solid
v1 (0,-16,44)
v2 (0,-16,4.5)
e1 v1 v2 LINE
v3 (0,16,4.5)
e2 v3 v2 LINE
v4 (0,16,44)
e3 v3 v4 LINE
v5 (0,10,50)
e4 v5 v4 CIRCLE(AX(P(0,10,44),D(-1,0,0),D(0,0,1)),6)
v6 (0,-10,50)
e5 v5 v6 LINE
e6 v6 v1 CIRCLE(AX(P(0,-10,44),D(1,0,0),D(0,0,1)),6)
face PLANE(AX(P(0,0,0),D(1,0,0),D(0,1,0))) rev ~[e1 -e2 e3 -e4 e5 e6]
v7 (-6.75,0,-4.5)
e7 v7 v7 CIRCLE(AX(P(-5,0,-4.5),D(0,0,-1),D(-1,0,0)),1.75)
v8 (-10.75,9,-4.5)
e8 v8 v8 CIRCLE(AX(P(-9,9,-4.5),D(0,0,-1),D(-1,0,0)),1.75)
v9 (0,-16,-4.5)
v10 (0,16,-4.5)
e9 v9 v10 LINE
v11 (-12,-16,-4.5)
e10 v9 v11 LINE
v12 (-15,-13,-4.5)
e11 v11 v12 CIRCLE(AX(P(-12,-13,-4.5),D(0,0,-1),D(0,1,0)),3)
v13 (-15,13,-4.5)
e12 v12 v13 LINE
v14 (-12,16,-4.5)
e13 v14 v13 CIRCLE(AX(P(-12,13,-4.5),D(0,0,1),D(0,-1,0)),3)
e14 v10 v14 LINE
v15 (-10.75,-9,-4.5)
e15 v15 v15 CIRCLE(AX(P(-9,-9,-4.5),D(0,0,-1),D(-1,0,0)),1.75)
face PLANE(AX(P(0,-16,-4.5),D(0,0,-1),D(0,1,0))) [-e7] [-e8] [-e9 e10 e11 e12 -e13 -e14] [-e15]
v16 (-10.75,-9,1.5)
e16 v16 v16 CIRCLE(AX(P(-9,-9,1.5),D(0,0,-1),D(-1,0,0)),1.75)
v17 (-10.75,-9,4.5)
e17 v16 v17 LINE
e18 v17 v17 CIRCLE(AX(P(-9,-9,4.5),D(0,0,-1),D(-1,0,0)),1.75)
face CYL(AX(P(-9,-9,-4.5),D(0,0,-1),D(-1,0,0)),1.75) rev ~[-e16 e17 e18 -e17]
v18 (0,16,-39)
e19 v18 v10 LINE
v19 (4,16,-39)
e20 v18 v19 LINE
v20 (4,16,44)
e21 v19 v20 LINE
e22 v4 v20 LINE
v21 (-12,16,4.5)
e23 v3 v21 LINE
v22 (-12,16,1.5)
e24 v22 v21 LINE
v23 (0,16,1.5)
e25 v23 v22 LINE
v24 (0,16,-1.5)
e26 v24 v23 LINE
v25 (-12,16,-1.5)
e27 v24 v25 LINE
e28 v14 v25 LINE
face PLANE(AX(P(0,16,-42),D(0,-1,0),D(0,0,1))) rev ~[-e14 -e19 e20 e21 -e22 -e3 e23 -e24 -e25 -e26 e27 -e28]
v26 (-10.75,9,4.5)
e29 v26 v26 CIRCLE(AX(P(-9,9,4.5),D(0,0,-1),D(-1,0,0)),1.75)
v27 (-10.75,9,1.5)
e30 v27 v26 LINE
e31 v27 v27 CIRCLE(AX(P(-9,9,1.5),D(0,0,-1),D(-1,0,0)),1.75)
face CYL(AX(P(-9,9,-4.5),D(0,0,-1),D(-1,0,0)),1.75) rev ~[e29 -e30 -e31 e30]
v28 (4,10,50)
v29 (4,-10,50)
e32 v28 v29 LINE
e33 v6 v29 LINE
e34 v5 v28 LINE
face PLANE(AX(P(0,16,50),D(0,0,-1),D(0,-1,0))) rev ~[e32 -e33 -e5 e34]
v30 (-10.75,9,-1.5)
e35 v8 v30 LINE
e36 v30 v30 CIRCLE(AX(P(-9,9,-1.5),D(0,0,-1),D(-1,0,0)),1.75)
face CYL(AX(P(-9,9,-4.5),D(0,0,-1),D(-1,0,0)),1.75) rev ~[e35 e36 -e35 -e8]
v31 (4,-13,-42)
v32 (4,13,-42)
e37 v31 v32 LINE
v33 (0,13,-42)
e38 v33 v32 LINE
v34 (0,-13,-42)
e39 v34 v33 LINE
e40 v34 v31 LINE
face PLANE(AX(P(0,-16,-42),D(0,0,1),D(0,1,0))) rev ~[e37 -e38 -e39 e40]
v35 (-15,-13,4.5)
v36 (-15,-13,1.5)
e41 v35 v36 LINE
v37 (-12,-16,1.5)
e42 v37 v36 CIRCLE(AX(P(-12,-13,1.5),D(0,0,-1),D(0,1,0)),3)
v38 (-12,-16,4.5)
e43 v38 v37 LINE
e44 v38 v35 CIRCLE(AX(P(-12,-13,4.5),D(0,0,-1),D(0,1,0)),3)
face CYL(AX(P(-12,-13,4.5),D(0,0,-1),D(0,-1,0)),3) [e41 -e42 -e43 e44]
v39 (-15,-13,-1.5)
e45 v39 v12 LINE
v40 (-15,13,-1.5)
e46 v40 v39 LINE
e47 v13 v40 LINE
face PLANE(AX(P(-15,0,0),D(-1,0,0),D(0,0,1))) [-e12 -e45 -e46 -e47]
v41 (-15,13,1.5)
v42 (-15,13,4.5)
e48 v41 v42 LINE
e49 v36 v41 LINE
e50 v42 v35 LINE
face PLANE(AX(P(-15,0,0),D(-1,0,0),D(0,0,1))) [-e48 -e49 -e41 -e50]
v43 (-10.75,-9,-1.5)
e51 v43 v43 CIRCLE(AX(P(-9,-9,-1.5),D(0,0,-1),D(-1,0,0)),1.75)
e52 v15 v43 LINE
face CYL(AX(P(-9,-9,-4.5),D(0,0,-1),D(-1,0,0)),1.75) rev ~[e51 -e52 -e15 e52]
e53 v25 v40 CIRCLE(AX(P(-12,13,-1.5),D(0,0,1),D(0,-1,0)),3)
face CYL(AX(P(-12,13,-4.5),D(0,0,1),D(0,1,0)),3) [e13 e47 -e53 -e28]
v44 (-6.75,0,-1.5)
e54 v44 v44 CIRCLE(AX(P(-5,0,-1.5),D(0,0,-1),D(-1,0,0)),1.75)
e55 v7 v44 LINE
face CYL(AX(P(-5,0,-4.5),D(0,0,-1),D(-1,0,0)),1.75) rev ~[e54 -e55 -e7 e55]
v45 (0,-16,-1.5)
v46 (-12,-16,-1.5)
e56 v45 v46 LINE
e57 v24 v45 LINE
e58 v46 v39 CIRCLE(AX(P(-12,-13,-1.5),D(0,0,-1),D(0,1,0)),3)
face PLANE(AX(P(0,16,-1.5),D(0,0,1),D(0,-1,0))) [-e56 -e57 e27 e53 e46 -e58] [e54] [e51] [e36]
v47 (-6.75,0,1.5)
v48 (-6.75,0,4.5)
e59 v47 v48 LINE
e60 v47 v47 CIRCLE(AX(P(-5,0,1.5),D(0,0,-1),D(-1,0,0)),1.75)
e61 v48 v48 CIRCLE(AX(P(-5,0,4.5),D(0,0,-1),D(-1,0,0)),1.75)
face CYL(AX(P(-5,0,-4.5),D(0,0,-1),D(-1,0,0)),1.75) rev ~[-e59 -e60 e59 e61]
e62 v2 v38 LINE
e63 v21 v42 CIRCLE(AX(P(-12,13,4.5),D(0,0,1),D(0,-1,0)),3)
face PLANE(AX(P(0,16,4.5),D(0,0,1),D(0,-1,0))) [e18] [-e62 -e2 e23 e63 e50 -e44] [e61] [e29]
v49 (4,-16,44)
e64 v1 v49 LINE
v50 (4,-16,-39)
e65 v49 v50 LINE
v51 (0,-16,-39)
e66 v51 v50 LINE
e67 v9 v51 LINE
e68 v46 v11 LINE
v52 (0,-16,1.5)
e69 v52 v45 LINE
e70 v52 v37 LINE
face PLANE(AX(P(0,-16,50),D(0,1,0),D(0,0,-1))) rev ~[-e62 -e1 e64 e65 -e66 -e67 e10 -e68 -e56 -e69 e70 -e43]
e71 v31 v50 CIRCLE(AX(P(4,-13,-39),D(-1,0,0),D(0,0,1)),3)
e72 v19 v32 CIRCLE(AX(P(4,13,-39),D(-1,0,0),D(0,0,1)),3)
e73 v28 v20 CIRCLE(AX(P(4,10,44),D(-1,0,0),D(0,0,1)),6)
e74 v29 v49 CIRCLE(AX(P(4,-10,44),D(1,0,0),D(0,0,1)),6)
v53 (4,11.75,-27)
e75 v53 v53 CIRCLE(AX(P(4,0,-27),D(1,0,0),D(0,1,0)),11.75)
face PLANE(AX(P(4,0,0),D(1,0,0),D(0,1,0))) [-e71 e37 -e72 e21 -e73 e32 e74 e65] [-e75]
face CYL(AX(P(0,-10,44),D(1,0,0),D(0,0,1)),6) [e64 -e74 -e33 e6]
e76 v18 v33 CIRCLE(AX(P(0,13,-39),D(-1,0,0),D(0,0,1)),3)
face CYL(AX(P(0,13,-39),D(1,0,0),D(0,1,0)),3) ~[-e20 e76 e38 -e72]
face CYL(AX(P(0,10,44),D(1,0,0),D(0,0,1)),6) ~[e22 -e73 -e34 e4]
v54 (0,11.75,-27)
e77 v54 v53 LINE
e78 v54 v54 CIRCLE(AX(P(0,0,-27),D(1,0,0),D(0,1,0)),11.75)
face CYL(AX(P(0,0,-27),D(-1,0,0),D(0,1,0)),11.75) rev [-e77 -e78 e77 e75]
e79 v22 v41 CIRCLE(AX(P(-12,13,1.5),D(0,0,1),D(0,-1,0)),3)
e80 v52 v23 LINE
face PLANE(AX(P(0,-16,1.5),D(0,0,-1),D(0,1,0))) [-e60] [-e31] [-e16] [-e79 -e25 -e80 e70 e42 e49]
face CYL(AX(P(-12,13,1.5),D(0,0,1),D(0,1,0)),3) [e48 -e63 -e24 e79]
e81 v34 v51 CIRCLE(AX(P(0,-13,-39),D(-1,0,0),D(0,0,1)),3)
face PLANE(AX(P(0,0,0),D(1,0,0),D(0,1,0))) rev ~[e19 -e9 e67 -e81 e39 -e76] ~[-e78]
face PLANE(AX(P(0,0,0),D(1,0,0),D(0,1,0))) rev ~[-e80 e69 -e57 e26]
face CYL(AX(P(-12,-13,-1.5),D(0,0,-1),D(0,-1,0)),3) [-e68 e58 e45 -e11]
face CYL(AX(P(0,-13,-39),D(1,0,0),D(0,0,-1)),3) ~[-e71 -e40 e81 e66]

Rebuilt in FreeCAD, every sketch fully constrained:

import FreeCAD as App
import Part
import Sketcher

V = App.Vector
Q = App.Units.Quantity


def edges_at(feature, points):
    """Names of the edges that pass closest to the given points."""
    edges = feature.Shape.Edges
    near = lambda p: min(range(len(edges)), key=lambda i: edges[i].distToShape(Part.Vertex(*p))[0])
    return sorted({f"Edge{near(p) + 1}" for p in points})


def add_polygon(sketch, points):
    """Adds a closed chain of lines whose ends are joined by coincident constraints."""
    first, n = sketch.GeometryCount, len(points)
    for a, b in zip(points, points[1:] + points[:1]):
        sketch.addGeometry(Part.LineSegment(App.Vector(*a, 0), App.Vector(*b, 0)), False)
    for i in range(n):
        sketch.addConstraint(Sketcher.Constraint("Coincident", first + i, 2, first + (i + 1) % n, 1))

doc = App.newDocument("Part")
body = doc.addObject("PartDesign::Body", "Body")

# Sketch on YZ plane
sketch1 = body.newObject("Sketcher::SketchObject", "Sketch")
sketch1.AttachmentSupport = (doc.getObject("YZ_Plane"), [""])
sketch1.MapMode = "FlatFace"
add_polygon(sketch1, [(16, -42), (16, 50), (-16, 50), (-16, -42)])  # lines 0-3
sketch1.addGeometry(Part.Circle(V(0, -27, 0), V(0, 0, 1), 12), False)  # 4
sketch1.addConstraint([
    Sketcher.Constraint("Vertical", 0),
    Sketcher.Constraint("Horizontal", 1),
    Sketcher.Constraint("Vertical", 2),
    Sketcher.Constraint("Horizontal", 3),
    Sketcher.Constraint("PointOnObject", 4, 3, -2),
    Sketcher.Constraint("Diameter", 4, Q("23.5 mm")),
    Sketcher.Constraint("DistanceX", 1, 2, 1, 1, Q("32 mm")),
    Sketcher.Constraint("DistanceY", 4, 3, -1, 1, Q("27 mm")),
    Sketcher.Constraint("DistanceY", -1, 1, 0, 2, Q("50 mm")),
    Sketcher.Constraint("DistanceY", 2, 2, -1, 1, Q("42 mm")),
    Sketcher.Constraint("DistanceX", -1, 1, 0, 2, Q("16 mm")),
])
pad1 = body.newObject("PartDesign::Pad", "Pad")
pad1.Profile = sketch1
pad1.Length = 4
doc.recompute()

fillet = body.newObject("PartDesign::Fillet", "Fillet")
fillet.Base = (pad1, edges_at(pad1, [(2, -16, -42), (2, 16, -42)]))
fillet.Radius = 3
doc.recompute()

fillet2 = body.newObject("PartDesign::Fillet", "Fillet001")
fillet2.Base = (fillet, edges_at(fillet, [(2, -16, 50)]))
fillet2.Radius = 6
doc.recompute()

fillet3 = body.newObject("PartDesign::Fillet", "Fillet002")
fillet3.Base = (fillet2, edges_at(fillet2, [(2, 16, 50)]))
fillet3.Radius = 6

# Sketch on YZ plane
sketch2 = body.newObject("Sketcher::SketchObject", "Sketch001")
sketch2.AttachmentSupport = (doc.getObject("YZ_Plane"), [""])
sketch2.MapMode = "FlatFace"
add_polygon(sketch2, [(-16, 1.5), (-16, 4.5), (16, 4.5), (16, 1.5)])  # lines 0-3
add_polygon(sketch2, [(-16, -4.5), (-16, -1.5), (16, -1.5), (16, -4.5)])  # lines 4-7
sketch2.addConstraint([
    Sketcher.Constraint("Vertical", 0),
    Sketcher.Constraint("Horizontal", 1),
    Sketcher.Constraint("Vertical", 2),
    Sketcher.Constraint("Horizontal", 3),
    Sketcher.Constraint("Vertical", 4),
    Sketcher.Constraint("Horizontal", 5),
    Sketcher.Constraint("Vertical", 6),
    Sketcher.Constraint("Horizontal", 7),
    Sketcher.Constraint("Symmetric", 2, 2, 4, 2, -1, 1),
    Sketcher.Constraint("Symmetric", 0, 2, 6, 2, -1, 1),
    Sketcher.Constraint("Vertical", 3, 2, 4, 2),
    Sketcher.Constraint("DistanceY", 0, 1, 0, 2, Q("3 mm")),
    Sketcher.Constraint("DistanceY", 4, 2, 3, 2, Q("3 mm")),
    Sketcher.Constraint("DistanceX", 1, 1, 1, 2, Q("32 mm")),
])
pad2 = body.newObject("PartDesign::Pad", "Pad001")
pad2.Profile = sketch2
pad2.Length = 15
pad2.Reversed = True
doc.recompute()

fillet4 = body.newObject("PartDesign::Fillet", "Fillet003")
fillet4.Base = (pad2, edges_at(pad2, [
    (-15, -16, 3),
    (-15, -16, -3),
    (-15, 16, 3),
    (-15, 16, -3),
]))
fillet4.Radius = 3

# Sketch on XY plane
sketch3 = body.newObject("Sketcher::SketchObject", "Sketch002")
sketch3.AttachmentSupport = (doc.getObject("XY_Plane"), [""])
sketch3.MapMode = "FlatFace"
sketch3.AttachmentOffset = App.Placement(V(0, 0, -4.5), App.Rotation())
sketch3.addGeometry([
    Part.Circle(V(-9, -9, 0), V(0, 0, 1), 1.8),
    Part.Circle(V(-9, 9, 0), V(0, 0, 1), 1.8),
    Part.Circle(V(-5, 0, 0), V(0, 0, 1), 1.8),
], False)
sketch3.addConstraint([
    Sketcher.Constraint("Equal", 0, 1),
    Sketcher.Constraint("Equal", 1, 2),
    Sketcher.Constraint("Symmetric", 0, 3, 1, 3, -1),
    Sketcher.Constraint("PointOnObject", 2, 3, -1),
    Sketcher.Constraint("Diameter", 0, Q("3.5 mm")),
    Sketcher.Constraint("DistanceX", 0, 3, -1, 1, Q("9 mm")),
    Sketcher.Constraint("DistanceY", 0, 3, -1, 1, Q("9 mm")),
    Sketcher.Constraint("DistanceX", 2, 3, -1, 1, Q("5 mm")),
])
pocket1 = body.newObject("PartDesign::Pocket", "Pocket")
pocket1.Profile = sketch3
pocket1.Length = 15
pocket1.Reversed = True

doc.recompute()
